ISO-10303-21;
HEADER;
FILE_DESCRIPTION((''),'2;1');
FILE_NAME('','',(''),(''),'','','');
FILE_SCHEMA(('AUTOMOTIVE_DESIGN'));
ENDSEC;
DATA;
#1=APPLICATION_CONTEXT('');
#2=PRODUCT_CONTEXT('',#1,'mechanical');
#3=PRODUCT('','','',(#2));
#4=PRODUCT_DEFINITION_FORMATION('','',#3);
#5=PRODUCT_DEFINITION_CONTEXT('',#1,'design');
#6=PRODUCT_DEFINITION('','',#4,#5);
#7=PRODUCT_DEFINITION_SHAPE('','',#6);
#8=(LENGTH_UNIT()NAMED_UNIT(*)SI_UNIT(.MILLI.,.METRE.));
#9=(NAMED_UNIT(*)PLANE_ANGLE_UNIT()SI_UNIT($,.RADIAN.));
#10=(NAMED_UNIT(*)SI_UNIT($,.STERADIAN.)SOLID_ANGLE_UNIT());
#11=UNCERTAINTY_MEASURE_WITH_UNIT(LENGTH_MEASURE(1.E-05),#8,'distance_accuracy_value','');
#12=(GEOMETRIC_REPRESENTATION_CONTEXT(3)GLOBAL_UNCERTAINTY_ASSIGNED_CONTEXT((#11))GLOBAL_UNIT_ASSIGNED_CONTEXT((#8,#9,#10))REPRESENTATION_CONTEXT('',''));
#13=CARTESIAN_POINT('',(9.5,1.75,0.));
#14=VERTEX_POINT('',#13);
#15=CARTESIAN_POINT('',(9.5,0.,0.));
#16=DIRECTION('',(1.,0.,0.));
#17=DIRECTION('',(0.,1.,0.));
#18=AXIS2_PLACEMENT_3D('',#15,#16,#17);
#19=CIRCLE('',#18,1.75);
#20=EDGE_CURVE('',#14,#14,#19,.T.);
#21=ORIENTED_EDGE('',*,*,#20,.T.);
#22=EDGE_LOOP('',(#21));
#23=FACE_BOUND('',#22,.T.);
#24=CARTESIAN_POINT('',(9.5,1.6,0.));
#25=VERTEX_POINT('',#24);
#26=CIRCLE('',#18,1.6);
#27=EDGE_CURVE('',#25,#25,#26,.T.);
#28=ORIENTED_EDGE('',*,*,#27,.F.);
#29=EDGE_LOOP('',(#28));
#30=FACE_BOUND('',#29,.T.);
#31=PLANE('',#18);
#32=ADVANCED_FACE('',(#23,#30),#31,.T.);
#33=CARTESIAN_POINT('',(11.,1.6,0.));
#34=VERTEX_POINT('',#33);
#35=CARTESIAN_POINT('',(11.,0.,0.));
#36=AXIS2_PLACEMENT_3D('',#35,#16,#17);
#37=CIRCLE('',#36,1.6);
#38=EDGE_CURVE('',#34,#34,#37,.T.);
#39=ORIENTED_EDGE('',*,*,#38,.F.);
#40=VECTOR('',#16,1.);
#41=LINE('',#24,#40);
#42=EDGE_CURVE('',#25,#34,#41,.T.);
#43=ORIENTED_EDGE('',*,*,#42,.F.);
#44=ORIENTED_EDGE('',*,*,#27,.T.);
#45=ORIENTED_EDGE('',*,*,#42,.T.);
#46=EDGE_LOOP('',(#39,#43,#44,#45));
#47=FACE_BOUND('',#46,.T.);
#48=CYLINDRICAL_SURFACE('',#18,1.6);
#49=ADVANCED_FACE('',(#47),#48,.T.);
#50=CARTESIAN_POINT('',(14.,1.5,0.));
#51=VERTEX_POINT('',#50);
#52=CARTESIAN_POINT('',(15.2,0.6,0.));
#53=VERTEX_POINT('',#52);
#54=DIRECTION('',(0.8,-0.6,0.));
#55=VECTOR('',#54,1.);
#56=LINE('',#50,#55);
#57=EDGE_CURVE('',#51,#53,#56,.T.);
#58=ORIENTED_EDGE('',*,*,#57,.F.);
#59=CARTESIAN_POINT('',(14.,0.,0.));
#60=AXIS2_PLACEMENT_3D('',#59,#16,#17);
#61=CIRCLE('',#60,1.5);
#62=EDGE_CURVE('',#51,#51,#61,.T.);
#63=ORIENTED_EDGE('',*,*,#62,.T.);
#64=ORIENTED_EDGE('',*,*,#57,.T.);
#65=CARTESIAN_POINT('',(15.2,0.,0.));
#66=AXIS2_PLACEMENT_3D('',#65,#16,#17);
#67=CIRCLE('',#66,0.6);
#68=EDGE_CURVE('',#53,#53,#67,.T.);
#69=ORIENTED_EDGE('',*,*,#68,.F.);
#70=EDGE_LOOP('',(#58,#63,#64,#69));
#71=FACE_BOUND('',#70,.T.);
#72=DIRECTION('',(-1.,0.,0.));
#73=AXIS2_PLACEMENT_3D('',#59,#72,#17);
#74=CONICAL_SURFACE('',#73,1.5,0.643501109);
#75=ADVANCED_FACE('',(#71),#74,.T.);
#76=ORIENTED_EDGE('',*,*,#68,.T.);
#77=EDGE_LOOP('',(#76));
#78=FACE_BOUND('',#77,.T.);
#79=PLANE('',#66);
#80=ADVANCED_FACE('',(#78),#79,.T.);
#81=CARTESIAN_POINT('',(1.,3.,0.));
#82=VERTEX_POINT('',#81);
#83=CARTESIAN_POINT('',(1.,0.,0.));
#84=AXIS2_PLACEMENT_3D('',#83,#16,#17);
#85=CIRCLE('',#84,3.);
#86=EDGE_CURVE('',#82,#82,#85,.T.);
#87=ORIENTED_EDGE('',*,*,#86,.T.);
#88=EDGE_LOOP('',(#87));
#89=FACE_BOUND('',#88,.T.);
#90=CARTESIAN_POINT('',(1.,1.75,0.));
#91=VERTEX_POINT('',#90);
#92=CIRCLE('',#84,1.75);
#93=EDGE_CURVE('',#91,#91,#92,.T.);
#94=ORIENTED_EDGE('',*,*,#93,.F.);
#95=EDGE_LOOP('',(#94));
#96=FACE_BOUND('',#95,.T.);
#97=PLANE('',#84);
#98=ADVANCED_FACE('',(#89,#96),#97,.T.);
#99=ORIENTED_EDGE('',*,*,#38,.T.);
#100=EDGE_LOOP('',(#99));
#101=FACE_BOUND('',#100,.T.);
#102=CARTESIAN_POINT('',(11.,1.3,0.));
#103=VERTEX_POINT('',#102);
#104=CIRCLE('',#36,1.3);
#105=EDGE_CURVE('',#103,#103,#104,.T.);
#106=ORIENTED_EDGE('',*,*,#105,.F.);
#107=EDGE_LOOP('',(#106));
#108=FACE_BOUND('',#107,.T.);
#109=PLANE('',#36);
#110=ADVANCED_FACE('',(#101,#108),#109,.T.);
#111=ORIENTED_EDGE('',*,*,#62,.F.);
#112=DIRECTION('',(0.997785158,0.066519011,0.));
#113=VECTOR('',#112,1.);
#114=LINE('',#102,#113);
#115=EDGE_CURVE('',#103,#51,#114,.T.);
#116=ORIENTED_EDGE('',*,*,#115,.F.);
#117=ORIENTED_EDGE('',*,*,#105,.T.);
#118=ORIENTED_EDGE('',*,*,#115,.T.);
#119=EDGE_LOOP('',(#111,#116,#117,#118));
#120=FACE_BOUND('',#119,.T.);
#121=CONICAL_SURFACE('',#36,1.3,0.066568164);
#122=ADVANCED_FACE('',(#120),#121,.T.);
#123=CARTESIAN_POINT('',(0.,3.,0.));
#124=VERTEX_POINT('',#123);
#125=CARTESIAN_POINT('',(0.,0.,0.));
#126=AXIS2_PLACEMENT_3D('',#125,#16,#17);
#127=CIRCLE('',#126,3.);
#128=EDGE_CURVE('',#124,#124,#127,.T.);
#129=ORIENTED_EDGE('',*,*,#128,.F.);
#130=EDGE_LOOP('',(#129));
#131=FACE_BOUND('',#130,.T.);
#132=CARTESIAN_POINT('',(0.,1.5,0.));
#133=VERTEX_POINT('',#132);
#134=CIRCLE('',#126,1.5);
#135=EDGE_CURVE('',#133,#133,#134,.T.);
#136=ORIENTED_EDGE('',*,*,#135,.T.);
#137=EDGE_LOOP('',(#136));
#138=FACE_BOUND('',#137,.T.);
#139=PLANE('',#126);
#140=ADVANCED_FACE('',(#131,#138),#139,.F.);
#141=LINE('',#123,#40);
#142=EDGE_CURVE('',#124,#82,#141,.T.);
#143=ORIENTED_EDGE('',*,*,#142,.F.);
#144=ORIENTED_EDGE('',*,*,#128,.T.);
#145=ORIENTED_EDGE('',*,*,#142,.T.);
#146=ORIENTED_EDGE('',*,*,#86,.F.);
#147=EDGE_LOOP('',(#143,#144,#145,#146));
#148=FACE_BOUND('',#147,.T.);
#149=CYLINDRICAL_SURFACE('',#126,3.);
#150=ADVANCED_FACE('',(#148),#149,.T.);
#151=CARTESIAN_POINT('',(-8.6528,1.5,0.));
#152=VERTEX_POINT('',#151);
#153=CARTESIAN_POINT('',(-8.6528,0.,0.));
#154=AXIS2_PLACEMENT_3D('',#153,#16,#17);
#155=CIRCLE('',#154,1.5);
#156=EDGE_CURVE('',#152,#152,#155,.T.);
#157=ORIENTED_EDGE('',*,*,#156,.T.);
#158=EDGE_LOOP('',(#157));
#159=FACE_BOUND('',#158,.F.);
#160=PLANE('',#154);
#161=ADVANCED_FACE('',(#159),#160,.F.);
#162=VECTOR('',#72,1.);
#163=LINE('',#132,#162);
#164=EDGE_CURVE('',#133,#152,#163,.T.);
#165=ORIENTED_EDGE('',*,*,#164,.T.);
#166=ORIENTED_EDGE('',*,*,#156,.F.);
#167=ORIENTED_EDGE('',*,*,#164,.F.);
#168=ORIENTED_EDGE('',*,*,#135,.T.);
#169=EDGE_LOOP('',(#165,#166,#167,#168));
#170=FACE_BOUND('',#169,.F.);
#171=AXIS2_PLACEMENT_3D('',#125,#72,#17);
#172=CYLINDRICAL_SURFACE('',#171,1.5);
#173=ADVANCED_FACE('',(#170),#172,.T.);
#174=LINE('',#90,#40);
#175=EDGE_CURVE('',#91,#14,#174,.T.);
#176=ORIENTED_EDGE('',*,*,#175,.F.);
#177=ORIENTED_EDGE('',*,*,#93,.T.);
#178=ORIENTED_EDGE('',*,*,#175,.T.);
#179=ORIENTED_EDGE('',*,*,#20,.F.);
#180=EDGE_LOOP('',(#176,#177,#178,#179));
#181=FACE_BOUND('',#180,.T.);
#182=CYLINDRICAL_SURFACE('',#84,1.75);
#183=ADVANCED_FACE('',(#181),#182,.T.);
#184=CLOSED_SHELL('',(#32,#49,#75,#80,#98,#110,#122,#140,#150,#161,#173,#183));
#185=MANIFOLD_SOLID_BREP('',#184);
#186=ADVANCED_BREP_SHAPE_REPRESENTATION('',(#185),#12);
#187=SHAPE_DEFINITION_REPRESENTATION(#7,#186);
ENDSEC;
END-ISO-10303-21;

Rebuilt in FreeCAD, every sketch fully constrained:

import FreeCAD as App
import Part
import Sketcher
from FreeCAD import Vector
Q = App.Units.Quantity

doc = App.newDocument("Part")
body = doc.addObject("PartDesign::Body", "Body")

# Sketch on XY plane
sketch1 = body.newObject("Sketcher::SketchObject", "Sketch")
sketch1.AttachmentSupport = (doc.getObject("XY_Plane"), [""])
sketch1.MapMode = "FlatFace"
sketch1.addGeometry(Part.LineSegment(Vector(-8.65, 0, 0), Vector(15.2, 0, 0)), False)
sketch1.addGeometry(Part.LineSegment(Vector(15.2, 0, 0), Vector(15.2, 0.6, 0)), False)
sketch1.addGeometry(Part.LineSegment(Vector(15.2, 0.6, 0), Vector(14, 1.5, 0)), False)
sketch1.addGeometry(Part.LineSegment(Vector(14, 1.5, 0), Vector(11, 1.3, 0)), False)
sketch1.addGeometry(Part.LineSegment(Vector(11, 1.3, 0), Vector(11, 1.6, 0)), False)
sketch1.addGeometry(Part.LineSegment(Vector(11, 1.6, 0), Vector(9.5, 1.6, 0)), False)
sketch1.addGeometry(Part.LineSegment(Vector(9.5, 1.6, 0), Vector(9.5, 1.75, 0)), False)
sketch1.addGeometry(Part.LineSegment(Vector(9.5, 1.75, 0), Vector(1, 1.75, 0)), False)
sketch1.addGeometry(Part.LineSegment(Vector(1, 1.75, 0), Vector(1, 3, 0)), False)
sketch1.addGeometry(Part.LineSegment(Vector(1, 3, 0), Vector(0, 3, 0)), False)
sketch1.addGeometry(Part.LineSegment(Vector(0, 3, 0), Vector(0, 1.5, 0)), False)
sketch1.addGeometry(Part.LineSegment(Vector(0, 1.5, 0), Vector(-8.65, 1.5, 0)), False)
sketch1.addGeometry(Part.LineSegment(Vector(-8.65, 1.5, 0), Vector(-8.65, 0, 0)), False)
sketch1.addConstraint(Sketcher.Constraint("Coincident", 0, 2, 1, 1))
sketch1.addConstraint(Sketcher.Constraint("Coincident", 1, 2, 2, 1))
sketch1.addConstraint(Sketcher.Constraint("Coincident", 2, 2, 3, 1))
sketch1.addConstraint(Sketcher.Constraint("Coincident", 3, 2, 4, 1))
sketch1.addConstraint(Sketcher.Constraint("Coincident", 4, 2, 5, 1))
sketch1.addConstraint(Sketcher.Constraint("Coincident", 5, 2, 6, 1))
sketch1.addConstraint(Sketcher.Constraint("Coincident", 6, 2, 7, 1))
sketch1.addConstraint(Sketcher.Constraint("Coincident", 7, 2, 8, 1))
sketch1.addConstraint(Sketcher.Constraint("Coincident", 8, 2, 9, 1))
sketch1.addConstraint(Sketcher.Constraint("Coincident", 9, 2, 10, 1))
sketch1.addConstraint(Sketcher.Constraint("Coincident", 10, 2, 11, 1))
sketch1.addConstraint(Sketcher.Constraint("Coincident", 11, 2, 12, 1))
sketch1.addConstraint(Sketcher.Constraint("Coincident", 12, 2, 0, 1))
sketch1.addConstraint(Sketcher.Constraint("Horizontal", 0))
sketch1.addConstraint(Sketcher.Constraint("Vertical", 1))
sketch1.addConstraint(Sketcher.Constraint("Vertical", 4))
sketch1.addConstraint(Sketcher.Constraint("Horizontal", 5))
sketch1.addConstraint(Sketcher.Constraint("Vertical", 6))
sketch1.addConstraint(Sketcher.Constraint("Horizontal", 7))
sketch1.addConstraint(Sketcher.Constraint("Vertical", 8))
sketch1.addConstraint(Sketcher.Constraint("Horizontal", 9))
sketch1.addConstraint(Sketcher.Constraint("Vertical", 10))
sketch1.addConstraint(Sketcher.Constraint("Horizontal", 11))
sketch1.addConstraint(Sketcher.Constraint("Vertical", 12))
sketch1.addConstraint(Sketcher.Constraint("PointOnObject", 0, 2, -1))
sketch1.addConstraint(Sketcher.Constraint("PointOnObject", 9, 2, -2))
sketch1.addConstraint(Sketcher.Constraint("Horizontal", 2, 2, 10, 2))
sketch1.addConstraint(Sketcher.Constraint("Equal", 5, 10))
sketch1.addConstraint(Sketcher.Constraint("Equal", 10, 12))
sketch1.addConstraint(Sketcher.Constraint("DistanceX", 9, 2, 9, 1, Q("1 mm")))
sketch1.addConstraint(Sketcher.Constraint("DistanceX", -1, 1, 2, 2, Q("14 mm")))
sketch1.addConstraint(Sketcher.Constraint("DistanceX", -1, 1, 3, 2, Q("11 mm")))
sketch1.addConstraint(Sketcher.Constraint("DistanceY", -1, 1, 8, 2, Q("3 mm")))
sketch1.addConstraint(Sketcher.Constraint("DistanceY", 1, 2, 4, 2, Q("1 mm")))
sketch1.addConstraint(Sketcher.Constraint("DistanceX", 2, 2, 1, 2, Q("1.2 mm")))
sketch1.addConstraint(Sketcher.Constraint("DistanceX", 11, 2, 11, 1, Q("8.6528 mm")))
sketch1.addConstraint(Sketcher.Constraint("DistanceY", 1, 1, 1, 2, Q("0.6 mm")))
sketch1.addConstraint(Sketcher.Constraint("DistanceY", 4, 1, 4, 2, Q("0.3 mm")))
sketch1.addConstraint(Sketcher.Constraint("DistanceY", 6, 1, 6, 2, Q("0.15 mm")))
revolution = body.newObject("PartDesign::Revolution", "Revolution")
revolution.Profile = sketch1
revolution.ReferenceAxis = (sketch1, ["H_Axis"])
revolution.Angle = 360

doc.recompute()
